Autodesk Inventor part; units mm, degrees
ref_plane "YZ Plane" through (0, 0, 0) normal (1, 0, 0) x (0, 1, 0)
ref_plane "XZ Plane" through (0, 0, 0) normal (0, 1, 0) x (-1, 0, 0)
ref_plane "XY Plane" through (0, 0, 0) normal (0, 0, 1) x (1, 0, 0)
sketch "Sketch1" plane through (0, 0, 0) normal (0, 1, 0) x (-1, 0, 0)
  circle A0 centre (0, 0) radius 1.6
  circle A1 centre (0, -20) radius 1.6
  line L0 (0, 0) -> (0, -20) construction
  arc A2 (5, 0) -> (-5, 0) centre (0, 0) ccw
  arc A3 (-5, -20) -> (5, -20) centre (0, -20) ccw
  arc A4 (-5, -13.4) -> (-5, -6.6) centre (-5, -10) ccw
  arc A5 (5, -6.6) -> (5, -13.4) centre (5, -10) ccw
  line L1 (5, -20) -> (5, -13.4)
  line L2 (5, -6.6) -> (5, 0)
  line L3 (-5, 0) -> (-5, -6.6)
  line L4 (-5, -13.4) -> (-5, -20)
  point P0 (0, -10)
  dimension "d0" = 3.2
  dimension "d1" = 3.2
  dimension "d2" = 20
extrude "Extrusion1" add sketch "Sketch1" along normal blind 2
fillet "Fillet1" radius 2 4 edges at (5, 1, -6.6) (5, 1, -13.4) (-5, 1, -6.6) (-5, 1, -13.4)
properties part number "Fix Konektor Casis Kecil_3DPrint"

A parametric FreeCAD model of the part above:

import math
import FreeCAD as App
import Part
import Sketcher
Q = App.Units.Quantity


def edges_at(feature, points):
    """Names of the edges that pass closest to the given points."""
    edges = feature.Shape.Edges
    near = lambda p: min(range(len(edges)), key=lambda i: edges[i].distToShape(Part.Vertex(*p))[0])
    return sorted({f"Edge{near(p) + 1}" for p in points})

doc = App.newDocument("Part")
body = doc.addObject("PartDesign::Body", "Body")

# Sketch on XZ plane
sketch1 = doc.addObject("Sketcher::SketchObject", "Sketch")
body.addObject(sketch1)
sketch1.AttachmentSupport = (doc.XZ_Plane, [""])
sketch1.MapMode = "FlatFace"
sketch1.addGeometry([
    Part.LineSegment(App.Vector(-5, -6.6, 0), App.Vector(-5, 0, 0)),  # 0
    Part.ArcOfCircle(Part.Circle(App.Vector(0, 0, 0), App.Vector(0, 0, 1), 5), math.radians(0), math.radians(180)),  # 1
    Part.LineSegment(App.Vector(5, 0, 0), App.Vector(5, -6.6, 0)),  # 2
    Part.ArcOfCircle(Part.Circle(App.Vector(5, -10, 0), App.Vector(0, 0, 1), 3.4), math.radians(90), math.radians(270)),  # 3
    Part.LineSegment(App.Vector(5, -13.4, 0), App.Vector(5, -20, 0)),  # 4
    Part.ArcOfCircle(Part.Circle(App.Vector(0, -20, 0), App.Vector(0, 0, 1), 5), math.radians(180), math.radians(360)),  # 5
    Part.LineSegment(App.Vector(-5, -20, 0), App.Vector(-5, -13.4, 0)),  # 6
    Part.ArcOfCircle(Part.Circle(App.Vector(-5, -10, 0), App.Vector(0, 0, 1), 3.4), math.radians(-90), math.radians(90)),  # 7
    Part.Circle(App.Vector(0, -20, 0), App.Vector(0, 0, 1), 1.6),  # 8
    Part.Circle(App.Vector(0, 0, 0), App.Vector(0, 0, 1), 1.6),  # 9
], False)
sketch1.addConstraint([
    Sketcher.Constraint("Tangent", 0, 2, 1, 2),
    Sketcher.Constraint("Tangent", 1, 1, 2, 1),
    Sketcher.Constraint("Coincident", 2, 2, 3, 1),
    Sketcher.Constraint("Coincident", 3, 2, 4, 1),
    Sketcher.Constraint("Tangent", 4, 2, 5, 2),
    Sketcher.Constraint("Tangent", 5, 1, 6, 1),
    Sketcher.Constraint("Coincident", 6, 2, 7, 1),
    Sketcher.Constraint("Coincident", 7, 2, 0, 1),
    Sketcher.Constraint("Vertical", 0),
    Sketcher.Constraint("Vertical", 2),
    Sketcher.Constraint("Vertical", 4),
    Sketcher.Constraint("Vertical", 6),
    Sketcher.Constraint("Coincident", 1, 3, -1, 1),
    Sketcher.Constraint("Coincident", 9, 3, -1, 1),
    Sketcher.Constraint("Coincident", 8, 3, 5, 3),
    Sketcher.Constraint("Equal", 1, 5),
    Sketcher.Constraint("Equal", 3, 7),
    Sketcher.Constraint("Equal", 8, 9),
    Sketcher.Constraint("Symmetric", 3, 3, 7, 3, -2),
    Sketcher.Constraint("PointOnObject", 5, 3, -2),
    Sketcher.Constraint("Vertical", 7, 3, 0, 2),
    Sketcher.Constraint("Equal", 2, 4),
    Sketcher.Constraint("Diameter", 8, Q("3.2 mm")),
    Sketcher.Constraint("DistanceY", 5, 3, -1, 1, Q("20 mm")),
    Sketcher.Constraint("Radius", 1, Q("5 mm")),
    Sketcher.Constraint("Radius", 3, Q("3.4 mm")),
])
pad1 = doc.addObject("PartDesign::Pad", "Pad")
body.addObject(pad1)
pad1.Profile = sketch1
pad1.Length = 2
pad1.Reversed = True
doc.recompute()

fillet = doc.addObject("PartDesign::Fillet", "Fillet")
body.addObject(fillet)
fillet.Base = (pad1, edges_at(pad1, [
    (5, 1, -6.6),
    (5, 1, -13.4),
    (-5, 1, -6.6),
    (-5, 1, -13.4),
]))
fillet.Radius = 2

doc.recompute()
